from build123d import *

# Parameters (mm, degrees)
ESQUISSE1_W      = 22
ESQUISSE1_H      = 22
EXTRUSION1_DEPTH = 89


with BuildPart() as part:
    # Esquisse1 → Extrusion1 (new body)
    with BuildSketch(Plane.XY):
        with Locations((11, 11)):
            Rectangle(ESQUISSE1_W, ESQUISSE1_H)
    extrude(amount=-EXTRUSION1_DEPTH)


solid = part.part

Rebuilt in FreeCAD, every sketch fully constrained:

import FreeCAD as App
import Part
import Sketcher

V = App.Vector
Q = App.Units.Quantity


def add_polygon(sketch, points):
    """Adds a closed chain of lines whose ends are joined by coincident constraints."""
    first, n = sketch.GeometryCount, len(points)
    for a, b in zip(points, points[1:] + points[:1]):
        sketch.addGeometry(Part.LineSegment(App.Vector(*a, 0), App.Vector(*b, 0)), False)
    for i in range(n):
        sketch.addConstraint(Sketcher.Constraint("Coincident", first + i, 2, first + (i + 1) % n, 1))

doc = App.newDocument("Part")
body = doc.addObject("PartDesign::Body", "Body")

# Sketch on XY plane
sketch1 = body.newObject("Sketcher::SketchObject", "Sketch")
sketch1.AttachmentSupport = (doc.getObject("XY_Plane"), [""])
sketch1.MapMode = "FlatFace"
add_polygon(sketch1, [(0, 22), (0, 0), (22, 0), (22, 22)])  # lines 0-3
sketch1.addConstraint([
    Sketcher.Constraint("Vertical", 0),
    Sketcher.Constraint("Horizontal", 1),
    Sketcher.Constraint("Vertical", 2),
    Sketcher.Constraint("Horizontal", 3),
    Sketcher.Constraint("Coincident", 0, 2, -1, 1),
    Sketcher.Constraint("Equal", 3, 0),
    Sketcher.Constraint("DistanceX", 1, 1, 1, 2, Q("22 mm")),
])
pad1 = body.newObject("PartDesign::Pad", "Pad")
pad1.Profile = sketch1
pad1.Length = 89
pad1.Reversed = True

doc.recompute()
